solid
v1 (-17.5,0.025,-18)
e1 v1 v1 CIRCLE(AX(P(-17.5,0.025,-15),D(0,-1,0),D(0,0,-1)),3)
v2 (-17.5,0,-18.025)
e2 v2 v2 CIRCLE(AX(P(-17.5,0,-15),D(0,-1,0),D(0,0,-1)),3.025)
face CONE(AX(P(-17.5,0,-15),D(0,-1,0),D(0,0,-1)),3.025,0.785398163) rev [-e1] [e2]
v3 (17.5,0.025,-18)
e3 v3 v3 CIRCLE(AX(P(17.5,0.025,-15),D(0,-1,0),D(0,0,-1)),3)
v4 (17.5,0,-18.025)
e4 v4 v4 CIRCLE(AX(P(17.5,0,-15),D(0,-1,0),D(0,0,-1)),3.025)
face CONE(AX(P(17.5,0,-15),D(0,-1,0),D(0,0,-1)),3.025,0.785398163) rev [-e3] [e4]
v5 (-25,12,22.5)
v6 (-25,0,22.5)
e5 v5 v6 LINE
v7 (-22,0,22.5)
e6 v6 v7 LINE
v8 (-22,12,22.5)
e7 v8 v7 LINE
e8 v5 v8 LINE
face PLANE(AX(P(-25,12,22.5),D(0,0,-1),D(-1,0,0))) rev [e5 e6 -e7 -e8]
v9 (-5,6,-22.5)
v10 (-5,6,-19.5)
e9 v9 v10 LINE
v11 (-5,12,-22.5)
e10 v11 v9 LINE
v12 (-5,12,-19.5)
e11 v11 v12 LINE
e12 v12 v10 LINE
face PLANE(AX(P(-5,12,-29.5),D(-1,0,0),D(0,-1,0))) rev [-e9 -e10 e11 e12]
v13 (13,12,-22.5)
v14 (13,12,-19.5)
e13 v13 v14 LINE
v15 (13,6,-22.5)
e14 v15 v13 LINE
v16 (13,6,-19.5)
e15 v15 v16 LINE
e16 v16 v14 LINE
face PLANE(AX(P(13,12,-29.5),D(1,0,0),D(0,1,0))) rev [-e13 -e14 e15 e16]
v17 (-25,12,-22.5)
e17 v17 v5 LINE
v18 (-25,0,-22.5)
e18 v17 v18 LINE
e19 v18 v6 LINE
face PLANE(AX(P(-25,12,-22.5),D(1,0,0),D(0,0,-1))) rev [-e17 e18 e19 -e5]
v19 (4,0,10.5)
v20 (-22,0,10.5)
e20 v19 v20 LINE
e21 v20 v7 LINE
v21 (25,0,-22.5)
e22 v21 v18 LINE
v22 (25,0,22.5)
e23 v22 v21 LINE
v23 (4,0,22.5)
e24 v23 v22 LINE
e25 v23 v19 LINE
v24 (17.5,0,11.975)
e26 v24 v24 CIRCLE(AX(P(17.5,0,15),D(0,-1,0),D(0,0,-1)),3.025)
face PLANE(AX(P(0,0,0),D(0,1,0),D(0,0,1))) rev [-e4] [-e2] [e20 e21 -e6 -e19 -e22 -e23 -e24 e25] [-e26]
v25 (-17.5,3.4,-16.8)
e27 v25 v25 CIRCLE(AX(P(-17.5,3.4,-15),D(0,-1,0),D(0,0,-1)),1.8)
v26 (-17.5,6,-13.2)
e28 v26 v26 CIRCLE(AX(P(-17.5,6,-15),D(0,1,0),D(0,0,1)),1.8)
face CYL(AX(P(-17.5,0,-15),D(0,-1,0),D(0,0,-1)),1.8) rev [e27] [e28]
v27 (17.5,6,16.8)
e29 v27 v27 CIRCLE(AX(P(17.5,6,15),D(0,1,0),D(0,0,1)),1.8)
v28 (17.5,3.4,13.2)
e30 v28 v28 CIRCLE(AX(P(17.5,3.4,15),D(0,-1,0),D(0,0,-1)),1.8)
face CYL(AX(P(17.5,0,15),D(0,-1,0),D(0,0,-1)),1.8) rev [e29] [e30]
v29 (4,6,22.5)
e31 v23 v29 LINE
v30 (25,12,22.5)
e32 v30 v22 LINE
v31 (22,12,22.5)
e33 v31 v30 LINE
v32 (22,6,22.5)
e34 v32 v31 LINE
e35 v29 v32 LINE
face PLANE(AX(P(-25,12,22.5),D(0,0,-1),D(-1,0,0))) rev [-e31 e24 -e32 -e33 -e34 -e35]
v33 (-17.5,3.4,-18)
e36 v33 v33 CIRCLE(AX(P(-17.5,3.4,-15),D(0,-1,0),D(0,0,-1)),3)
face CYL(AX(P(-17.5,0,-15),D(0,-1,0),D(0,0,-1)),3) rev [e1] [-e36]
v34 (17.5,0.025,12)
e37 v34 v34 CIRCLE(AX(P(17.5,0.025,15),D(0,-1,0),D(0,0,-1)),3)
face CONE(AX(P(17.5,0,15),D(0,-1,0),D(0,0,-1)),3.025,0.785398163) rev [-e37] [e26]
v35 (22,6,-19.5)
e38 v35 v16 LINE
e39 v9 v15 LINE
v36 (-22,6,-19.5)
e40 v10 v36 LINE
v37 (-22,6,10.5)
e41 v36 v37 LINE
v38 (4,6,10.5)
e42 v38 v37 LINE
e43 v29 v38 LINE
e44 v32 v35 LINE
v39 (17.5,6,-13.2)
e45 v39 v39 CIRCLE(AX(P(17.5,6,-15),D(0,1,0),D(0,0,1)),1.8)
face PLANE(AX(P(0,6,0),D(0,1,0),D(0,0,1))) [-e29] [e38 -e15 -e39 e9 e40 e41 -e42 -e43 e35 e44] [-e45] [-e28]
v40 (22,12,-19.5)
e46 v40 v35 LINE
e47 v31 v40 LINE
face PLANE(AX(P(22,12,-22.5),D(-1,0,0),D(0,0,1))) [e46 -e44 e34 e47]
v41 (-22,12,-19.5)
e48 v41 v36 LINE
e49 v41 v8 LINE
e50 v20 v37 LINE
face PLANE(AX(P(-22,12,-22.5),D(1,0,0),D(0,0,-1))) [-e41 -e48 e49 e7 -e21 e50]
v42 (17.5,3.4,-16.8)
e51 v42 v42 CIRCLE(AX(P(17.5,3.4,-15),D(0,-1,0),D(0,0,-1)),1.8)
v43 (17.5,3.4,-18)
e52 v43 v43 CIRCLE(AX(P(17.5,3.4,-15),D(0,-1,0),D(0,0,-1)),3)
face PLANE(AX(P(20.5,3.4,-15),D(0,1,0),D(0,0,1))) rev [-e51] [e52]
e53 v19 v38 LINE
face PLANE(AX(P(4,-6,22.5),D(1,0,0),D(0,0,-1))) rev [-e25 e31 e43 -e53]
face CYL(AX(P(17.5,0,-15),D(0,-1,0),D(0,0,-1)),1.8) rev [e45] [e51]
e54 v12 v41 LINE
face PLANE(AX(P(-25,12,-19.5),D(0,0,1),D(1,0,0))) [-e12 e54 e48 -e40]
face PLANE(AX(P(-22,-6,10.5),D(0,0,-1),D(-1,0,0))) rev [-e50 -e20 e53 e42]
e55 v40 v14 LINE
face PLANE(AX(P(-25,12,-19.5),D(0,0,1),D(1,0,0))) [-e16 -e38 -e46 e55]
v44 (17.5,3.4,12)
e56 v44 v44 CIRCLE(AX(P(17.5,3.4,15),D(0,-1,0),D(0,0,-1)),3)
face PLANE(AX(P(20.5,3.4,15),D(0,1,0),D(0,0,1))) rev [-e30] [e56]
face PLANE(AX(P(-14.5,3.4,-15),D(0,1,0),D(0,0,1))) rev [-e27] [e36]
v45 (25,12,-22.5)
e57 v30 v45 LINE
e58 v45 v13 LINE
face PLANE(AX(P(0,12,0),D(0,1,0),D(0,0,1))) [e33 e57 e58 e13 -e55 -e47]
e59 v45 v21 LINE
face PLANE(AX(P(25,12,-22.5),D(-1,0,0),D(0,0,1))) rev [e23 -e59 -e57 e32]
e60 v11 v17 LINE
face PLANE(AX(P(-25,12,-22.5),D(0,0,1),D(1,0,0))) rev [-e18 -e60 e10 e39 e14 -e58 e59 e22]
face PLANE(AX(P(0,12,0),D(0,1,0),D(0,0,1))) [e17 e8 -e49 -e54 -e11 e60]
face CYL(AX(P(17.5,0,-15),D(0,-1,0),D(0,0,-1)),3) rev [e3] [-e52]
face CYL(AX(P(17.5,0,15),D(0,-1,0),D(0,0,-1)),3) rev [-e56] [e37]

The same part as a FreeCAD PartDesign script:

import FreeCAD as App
import Part
import Sketcher
Q = App.Units.Quantity


def faces_at(feature, points):
    """Names of the faces that lie closest to the given points."""
    faces = feature.Shape.Faces
    near = lambda p: min(range(len(faces)), key=lambda i: faces[i].distToShape(Part.Vertex(*p))[0])
    return sorted({f"Face{near(p) + 1}" for p in points})

doc = App.newDocument("Part")
body = doc.addObject("PartDesign::Body", "Body")

# Sketch on XZ plane
sketch1 = body.newObject("Sketcher::SketchObject", "Sketch")
sketch1.AttachmentSupport = (doc.getObject("XZ_Plane"), [""])
sketch1.MapMode = "FlatFace"
sketch1.addGeometry(Part.LineSegment(App.Vector(-25, -22.5, 0), App.Vector(-25, 22.5, 0)), False)
sketch1.addGeometry(Part.LineSegment(App.Vector(-25, 22.5, 0), App.Vector(25, 22.5, 0)), False)
sketch1.addGeometry(Part.LineSegment(App.Vector(25, 22.5, 0), App.Vector(25, -22.5, 0)), False)
sketch1.addGeometry(Part.LineSegment(App.Vector(25, -22.5, 0), App.Vector(-25, -22.5, 0)), False)
sketch1.addConstraint(Sketcher.Constraint("Coincident", 0, 2, 1, 1))
sketch1.addConstraint(Sketcher.Constraint("Coincident", 1, 2, 2, 1))
sketch1.addConstraint(Sketcher.Constraint("Coincident", 2, 2, 3, 1))
sketch1.addConstraint(Sketcher.Constraint("Coincident", 3, 2, 0, 1))
sketch1.addConstraint(Sketcher.Constraint("Vertical", 0))
sketch1.addConstraint(Sketcher.Constraint("Horizontal", 1))
sketch1.addConstraint(Sketcher.Constraint("Vertical", 2))
sketch1.addConstraint(Sketcher.Constraint("Horizontal", 3))
sketch1.addConstraint(Sketcher.Constraint("Symmetric", 0, 2, 2, 2, -1, 1))
sketch1.addConstraint(Sketcher.Constraint("DistanceX", 1, 1, 1, 2, Q("50 mm")))
sketch1.addConstraint(Sketcher.Constraint("DistanceY", 0, 1, 0, 2, Q("45 mm")))
pad1 = body.newObject("PartDesign::Pad", "Pad")
pad1.Profile = sketch1
pad1.Length = 12
pad1.Reversed = True
doc.recompute()

thickness = body.newObject("PartDesign::Thickness", "Thickness")
thickness.Base = (pad1, faces_at(pad1, [(0, 12, 0)]))
thickness.Value = 3
thickness.Reversed = True
thickness.Join = "Intersection"

# Sketch on XZ plane
sketch2 = body.newObject("Sketcher::SketchObject", "Sketch001")
sketch2.AttachmentSupport = (doc.getObject("XZ_Plane"), [""])
sketch2.MapMode = "FlatFace"
sketch2.AttachmentOffset = App.Placement(App.Vector(0, 0, -3), App.Rotation())
sketch2.addGeometry(Part.LineSegment(App.Vector(22, 19.5, 0), App.Vector(-22, 19.5, 0)), False)
sketch2.addGeometry(Part.LineSegment(App.Vector(-22, 19.5, 0), App.Vector(-22, -19.5, 0)), False)
sketch2.addGeometry(Part.LineSegment(App.Vector(-22, -19.5, 0), App.Vector(22, -19.5, 0)), False)
sketch2.addGeometry(Part.LineSegment(App.Vector(22, -19.5, 0), App.Vector(22, 19.5, 0)), False)
sketch2.addConstraint(Sketcher.Constraint("Coincident", 0, 2, 1, 1))
sketch2.addConstraint(Sketcher.Constraint("Coincident", 1, 2, 2, 1))
sketch2.addConstraint(Sketcher.Constraint("Coincident", 2, 2, 3, 1))
sketch2.addConstraint(Sketcher.Constraint("Coincident", 3, 2, 0, 1))
sketch2.addConstraint(Sketcher.Constraint("Horizontal", 0))
sketch2.addConstraint(Sketcher.Constraint("Vertical", 1))
sketch2.addConstraint(Sketcher.Constraint("Horizontal", 2))
sketch2.addConstraint(Sketcher.Constraint("Vertical", 3))
sketch2.addConstraint(Sketcher.Constraint("Symmetric", 0, 2, 2, 2, -1, 1))
sketch2.addConstraint(Sketcher.Constraint("DistanceX", 0, 2, 0, 1, Q("44 mm")))
sketch2.addConstraint(Sketcher.Constraint("DistanceY", 1, 2, 1, 1, Q("39 mm")))
pad2 = body.newObject("PartDesign::Pad", "Pad001")
pad2.Profile = sketch2
pad2.Length = 3
pad2.Reversed = True

# Sketch on YZ plane
sketch3 = body.newObject("Sketcher::SketchObject", "Sketch002")
sketch3.AttachmentSupport = (doc.getObject("YZ_Plane"), [""])
sketch3.MapMode = "FlatFace"
sketch3.AttachmentOffset = App.Placement(App.Vector(0, 0, -17.5), App.Rotation())
sketch3.addGeometry(Part.LineSegment(App.Vector(12, 15, 0), App.Vector(0, 15, 0)), False)
sketch3.addGeometry(Part.LineSegment(App.Vector(0, 15, 0), App.Vector(0, 11.975, 0)), False)
sketch3.addGeometry(Part.LineSegment(App.Vector(0, 11.975, 0), App.Vector(0.025, 12, 0)), False)
sketch3.addGeometry(Part.LineSegment(App.Vector(0.025, 12, 0), App.Vector(3.4, 12, 0)), False)
sketch3.addGeometry(Part.LineSegment(App.Vector(3.4, 12, 0), App.Vector(3.4, 13.2, 0)), False)
sketch3.addGeometry(Part.LineSegment(App.Vector(3.4, 13.2, 0), App.Vector(12, 13.2, 0)), False)
sketch3.addGeometry(Part.LineSegment(App.Vector(12, 13.2, 0), App.Vector(12, 15, 0)), False)
sketch3.addGeometry(Part.LineSegment(App.Vector(0, 15, 0), App.Vector(12, 15, 0)), True)  # axis
sketch3.addConstraint(Sketcher.Constraint("Coincident", 0, 2, 1, 1))
sketch3.addConstraint(Sketcher.Constraint("Coincident", 1, 2, 2, 1))
sketch3.addConstraint(Sketcher.Constraint("Coincident", 2, 2, 3, 1))
sketch3.addConstraint(Sketcher.Constraint("Coincident", 3, 2, 4, 1))
sketch3.addConstraint(Sketcher.Constraint("Coincident", 4, 2, 5, 1))
sketch3.addConstraint(Sketcher.Constraint("Coincident", 5, 2, 6, 1))
sketch3.addConstraint(Sketcher.Constraint("Coincident", 6, 2, 0, 1))
sketch3.addConstraint(Sketcher.Constraint("Horizontal", 0))
sketch3.addConstraint(Sketcher.Constraint("Vertical", 1))
sketch3.addConstraint(Sketcher.Constraint("Horizontal", 3))
sketch3.addConstraint(Sketcher.Constraint("Vertical", 4))
sketch3.addConstraint(Sketcher.Constraint("Horizontal", 5))
sketch3.addConstraint(Sketcher.Constraint("Vertical", 6))
sketch3.addConstraint(Sketcher.Constraint("Horizontal", 7))
sketch3.addConstraint(Sketcher.Constraint("Coincident", 7, 1, 0, 2))
sketch3.addConstraint(Sketcher.Constraint("PointOnObject", 0, 2, -2))
sketch3.addConstraint(Sketcher.Constraint("Vertical", 5, 2, 7, 2))
sketch3.addConstraint(Sketcher.Constraint("DistanceX", 0, 2, 0, 1, Q("12 mm")))
sketch3.addConstraint(Sketcher.Constraint("Angle", 2, Q("45 deg")))
sketch3.addConstraint(Sketcher.Constraint("DistanceX", 5, 1, 5, 2, Q("8.6 mm")))
sketch3.addConstraint(Sketcher.Constraint("DistanceY", 4, 1, 4, 2, Q("1.2 mm")))
sketch3.addConstraint(Sketcher.Constraint("DistanceY", 6, 1, 6, 2, Q("1.8 mm")))
sketch3.addConstraint(Sketcher.Constraint("DistanceY", -1, 1, 0, 2, Q("15 mm")))
sketch3.addConstraint(Sketcher.Constraint("DistanceX", 3, 1, 3, 2, Q("3.375 mm")))
groove = body.newObject("PartDesign::Groove", "Groove")
groove.Profile = sketch3
groove.ReferenceAxis = (sketch3, ["Axis0"])
groove.Angle = 360
doc.recompute()

linearpattern = body.newObject("PartDesign::LinearPattern", "LinearPattern")
linearpattern.Originals = [groove]
linearpattern.Direction = (doc.getObject("X_Axis"), [""])
linearpattern.Mode = "offset"
linearpattern.Offset = 35
linearpattern.Occurrences = 2
body.Tip = linearpattern
doc.recompute()

datumline = body.newObject("PartDesign::Line", "DatumLine")
datumline.Placement = App.Placement(App.Vector(0, 0, 0), App.Rotation(App.Vector(0, 0, 1), App.Vector(0.759256602, 0, -0.650791373)))
linearpattern2 = body.newObject("PartDesign::LinearPattern", "LinearPattern001")
linearpattern2.Originals = [groove]
linearpattern2.Direction = (datumline, [""])
linearpattern2.Mode = "offset"
linearpattern2.Offset = 46.097722
linearpattern2.Occurrences = 2
body.Tip = linearpattern2
doc.recompute()

linearpattern3 = body.newObject("PartDesign::LinearPattern", "LinearPattern002")
linearpattern3.Originals = [groove]
linearpattern3.Direction = (doc.getObject("Z_Axis"), [""])
linearpattern3.Mode = "offset"
linearpattern3.Offset = 30
linearpattern3.Occurrences = 2
linearpattern3.Reversed = True
body.Tip = linearpattern3

# Sketch on XY plane
sketch4 = body.newObject("Sketcher::SketchObject", "Sketch003")
sketch4.AttachmentSupport = (doc.getObject("XY_Plane"), [""])
sketch4.MapMode = "FlatFace"
sketch4.AttachmentOffset = App.Placement(App.Vector(0, 0, -17.5), App.Rotation())
sketch4.addGeometry(Part.LineSegment(App.Vector(-5, 12, 0), App.Vector(-5, 6, 0)), False)
sketch4.addGeometry(Part.LineSegment(App.Vector(-5, 6, 0), App.Vector(13, 6, 0)), False)
sketch4.addGeometry(Part.LineSegment(App.Vector(13, 6, 0), App.Vector(13, 12, 0)), False)
sketch4.addGeometry(Part.LineSegment(App.Vector(13, 12, 0), App.Vector(-5, 12, 0)), False)
sketch4.addConstraint(Sketcher.Constraint("Coincident", 0, 2, 1, 1))
sketch4.addConstraint(Sketcher.Constraint("Coincident", 1, 2, 2, 1))
sketch4.addConstraint(Sketcher.Constraint("Coincident", 2, 2, 3, 1))
sketch4.addConstraint(Sketcher.Constraint("Coincident", 3, 2, 0, 1))
sketch4.addConstraint(Sketcher.Constraint("Vertical", 0))
sketch4.addConstraint(Sketcher.Constraint("Horizontal", 1))
sketch4.addConstraint(Sketcher.Constraint("Vertical", 2))
sketch4.addConstraint(Sketcher.Constraint("Horizontal", 3))
sketch4.addConstraint(Sketcher.Constraint("DistanceX", 1, 1, 1, 2, Q("18 mm")))
sketch4.addConstraint(Sketcher.Constraint("DistanceY", 0, 2, 0, 1, Q("6 mm")))
sketch4.addConstraint(Sketcher.Constraint("DistanceX", 0, 2, -1, 1, Q("5 mm")))
sketch4.addConstraint(Sketcher.Constraint("DistanceY", -1, 1, 0, 2, Q("6 mm")))
pocket1 = body.newObject("PartDesign::Pocket", "Pocket")
pocket1.Profile = sketch4
pocket1.Length = 12

# Sketch on XY plane
sketch5 = body.newObject("Sketcher::SketchObject", "Sketch004")
sketch5.AttachmentSupport = (doc.getObject("XY_Plane"), [""])
sketch5.MapMode = "FlatFace"
sketch5.AttachmentOffset = App.Placement(App.Vector(0, 0, 22.5), App.Rotation())
sketch5.addGeometry(Part.LineSegment(App.Vector(-22, 12, 0), App.Vector(-22, 6, 0)), False)
sketch5.addGeometry(Part.LineSegment(App.Vector(-22, 6, 0), App.Vector(22, 6, 0)), False)
sketch5.addGeometry(Part.LineSegment(App.Vector(22, 6, 0), App.Vector(22, 12, 0)), False)
sketch5.addGeometry(Part.LineSegment(App.Vector(22, 12, 0), App.Vector(-22, 12, 0)), False)
sketch5.addConstraint(Sketcher.Constraint("Coincident", 0, 2, 1, 1))
sketch5.addConstraint(Sketcher.Constraint("Coincident", 1, 2, 2, 1))
sketch5.addConstraint(Sketcher.Constraint("Coincident", 2, 2, 3, 1))
sketch5.addConstraint(Sketcher.Constraint("Coincident", 3, 2, 0, 1))
sketch5.addConstraint(Sketcher.Constraint("Vertical", 0))
sketch5.addConstraint(Sketcher.Constraint("Horizontal", 1))
sketch5.addConstraint(Sketcher.Constraint("Vertical", 2))
sketch5.addConstraint(Sketcher.Constraint("Horizontal", 3))
sketch5.addConstraint(Sketcher.Constraint("DistanceX", 1, 1, 1, 2, Q("44 mm")))
sketch5.addConstraint(Sketcher.Constraint("DistanceY", 0, 2, 0, 1, Q("6 mm")))
sketch5.addConstraint(Sketcher.Constraint("DistanceX", 0, 2, -1, 1, Q("22 mm")))
sketch5.addConstraint(Sketcher.Constraint("DistanceY", -1, 1, 0, 2, Q("6 mm")))
pocket2 = body.newObject("PartDesign::Pocket", "Pocket001")
pocket2.Profile = sketch5
pocket2.Length = 12

# Sketch on XZ plane
sketch6 = body.newObject("Sketcher::SketchObject", "Sketch005")
sketch6.AttachmentSupport = (doc.getObject("XZ_Plane"), [""])
sketch6.MapMode = "FlatFace"
sketch6.AttachmentOffset = App.Placement(App.Vector(0, 0, -6), App.Rotation())
sketch6.addGeometry(Part.LineSegment(App.Vector(-22, 10.5, 0), App.Vector(-22, 22.5, 0)), False)
sketch6.addGeometry(Part.LineSegment(App.Vector(-22, 22.5, 0), App.Vector(4, 22.5, 0)), False)
sketch6.addGeometry(Part.LineSegment(App.Vector(4, 22.5, 0), App.Vector(4, 10.5, 0)), False)
sketch6.addGeometry(Part.LineSegment(App.Vector(4, 10.5, 0), App.Vector(-22, 10.5, 0)), False)
sketch6.addConstraint(Sketcher.Constraint("Coincident", 0, 2, 1, 1))
sketch6.addConstraint(Sketcher.Constraint("Coincident", 1, 2, 2, 1))
sketch6.addConstraint(Sketcher.Constraint("Coincident", 2, 2, 3, 1))
sketch6.addConstraint(Sketcher.Constraint("Coincident", 3, 2, 0, 1))
sketch6.addConstraint(Sketcher.Constraint("Vertical", 0))
sketch6.addConstraint(Sketcher.Constraint("Horizontal", 1))
sketch6.addConstraint(Sketcher.Constraint("Vertical", 2))
sketch6.addConstraint(Sketcher.Constraint("Horizontal", 3))
sketch6.addConstraint(Sketcher.Constraint("DistanceX", 1, 1, 1, 2, Q("26 mm")))
sketch6.addConstraint(Sketcher.Constraint("DistanceY", 0, 1, 0, 2, Q("12 mm")))
sketch6.addConstraint(Sketcher.Constraint("DistanceX", 0, 2, -1, 1, Q("22 mm")))
sketch6.addConstraint(Sketcher.Constraint("DistanceY", -1, 1, 0, 2, Q("22.5 mm")))
pocket3 = body.newObject("PartDesign::Pocket", "Pocket002")
pocket3.Profile = sketch6
pocket3.Length = 12
pocket3.Reversed = True

doc.recompute()
